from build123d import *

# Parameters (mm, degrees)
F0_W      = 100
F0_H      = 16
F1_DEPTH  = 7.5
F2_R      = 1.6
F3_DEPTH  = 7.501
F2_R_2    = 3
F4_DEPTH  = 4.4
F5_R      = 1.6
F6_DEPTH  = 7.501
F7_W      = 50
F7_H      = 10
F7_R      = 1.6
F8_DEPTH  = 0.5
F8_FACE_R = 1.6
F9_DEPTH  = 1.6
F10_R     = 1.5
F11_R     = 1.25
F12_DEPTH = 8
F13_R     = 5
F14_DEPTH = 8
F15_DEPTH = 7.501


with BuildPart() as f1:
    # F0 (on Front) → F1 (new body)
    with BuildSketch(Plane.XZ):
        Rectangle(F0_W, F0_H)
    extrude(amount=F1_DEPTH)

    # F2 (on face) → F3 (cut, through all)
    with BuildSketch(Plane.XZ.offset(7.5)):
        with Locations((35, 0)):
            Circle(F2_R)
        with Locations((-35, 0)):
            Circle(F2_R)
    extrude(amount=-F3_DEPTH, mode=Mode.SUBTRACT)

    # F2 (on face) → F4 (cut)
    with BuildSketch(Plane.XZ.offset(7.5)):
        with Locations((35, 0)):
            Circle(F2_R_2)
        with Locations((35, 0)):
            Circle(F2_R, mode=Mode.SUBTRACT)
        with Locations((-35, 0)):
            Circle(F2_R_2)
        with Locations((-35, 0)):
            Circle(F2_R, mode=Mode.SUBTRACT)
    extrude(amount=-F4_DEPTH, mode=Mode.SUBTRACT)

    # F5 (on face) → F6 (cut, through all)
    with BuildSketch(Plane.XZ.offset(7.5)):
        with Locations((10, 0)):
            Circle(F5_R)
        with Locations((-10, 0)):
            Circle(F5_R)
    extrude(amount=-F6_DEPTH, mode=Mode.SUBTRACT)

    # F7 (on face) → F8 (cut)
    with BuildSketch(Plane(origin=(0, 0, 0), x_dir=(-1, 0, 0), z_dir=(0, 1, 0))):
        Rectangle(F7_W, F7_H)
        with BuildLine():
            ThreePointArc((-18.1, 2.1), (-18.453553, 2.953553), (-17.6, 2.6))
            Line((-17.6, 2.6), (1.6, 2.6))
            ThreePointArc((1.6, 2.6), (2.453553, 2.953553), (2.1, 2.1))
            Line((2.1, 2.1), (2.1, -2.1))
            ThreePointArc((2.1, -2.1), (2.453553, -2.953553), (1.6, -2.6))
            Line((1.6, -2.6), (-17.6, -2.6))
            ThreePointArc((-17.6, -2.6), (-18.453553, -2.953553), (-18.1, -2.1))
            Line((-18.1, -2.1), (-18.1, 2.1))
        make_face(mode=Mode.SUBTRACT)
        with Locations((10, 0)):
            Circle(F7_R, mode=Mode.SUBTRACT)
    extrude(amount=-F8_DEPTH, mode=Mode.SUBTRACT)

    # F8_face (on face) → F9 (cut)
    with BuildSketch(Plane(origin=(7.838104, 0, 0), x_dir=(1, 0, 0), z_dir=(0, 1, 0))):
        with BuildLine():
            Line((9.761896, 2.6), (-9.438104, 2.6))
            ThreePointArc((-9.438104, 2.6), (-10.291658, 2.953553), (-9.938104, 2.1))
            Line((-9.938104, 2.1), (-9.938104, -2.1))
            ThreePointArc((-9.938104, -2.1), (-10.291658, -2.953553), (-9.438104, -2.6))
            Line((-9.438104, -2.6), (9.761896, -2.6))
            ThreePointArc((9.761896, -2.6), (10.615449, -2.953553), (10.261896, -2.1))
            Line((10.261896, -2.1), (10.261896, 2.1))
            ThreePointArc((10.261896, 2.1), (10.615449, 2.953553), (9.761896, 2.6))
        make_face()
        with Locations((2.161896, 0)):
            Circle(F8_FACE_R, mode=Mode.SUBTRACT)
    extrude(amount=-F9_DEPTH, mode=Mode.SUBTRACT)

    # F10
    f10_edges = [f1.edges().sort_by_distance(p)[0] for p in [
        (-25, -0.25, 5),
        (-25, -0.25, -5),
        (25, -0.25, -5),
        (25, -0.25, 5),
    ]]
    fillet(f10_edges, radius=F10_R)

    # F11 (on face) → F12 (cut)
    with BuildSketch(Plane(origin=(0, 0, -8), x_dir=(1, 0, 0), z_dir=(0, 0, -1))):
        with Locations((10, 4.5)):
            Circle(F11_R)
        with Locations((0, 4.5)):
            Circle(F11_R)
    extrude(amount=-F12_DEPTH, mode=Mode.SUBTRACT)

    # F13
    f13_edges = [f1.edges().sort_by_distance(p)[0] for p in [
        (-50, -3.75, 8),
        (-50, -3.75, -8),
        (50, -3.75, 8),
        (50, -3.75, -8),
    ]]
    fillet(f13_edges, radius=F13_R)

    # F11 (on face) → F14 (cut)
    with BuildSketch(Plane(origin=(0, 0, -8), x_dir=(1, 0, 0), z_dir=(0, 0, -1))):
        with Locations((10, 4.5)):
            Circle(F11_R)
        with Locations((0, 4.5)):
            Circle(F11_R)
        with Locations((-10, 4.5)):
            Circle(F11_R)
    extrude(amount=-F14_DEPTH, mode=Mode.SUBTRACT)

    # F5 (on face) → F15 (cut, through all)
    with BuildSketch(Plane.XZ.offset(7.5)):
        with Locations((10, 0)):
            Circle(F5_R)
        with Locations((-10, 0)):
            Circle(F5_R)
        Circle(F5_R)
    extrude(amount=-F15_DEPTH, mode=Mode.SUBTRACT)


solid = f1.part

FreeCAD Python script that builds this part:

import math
import FreeCAD as App
import Part
import Sketcher
from FreeCAD import Vector


def edges_at(feature, points):
    """Names of the edges that pass closest to the given points."""
    edges = feature.Shape.Edges
    near = lambda p: min(range(len(edges)), key=lambda i: edges[i].distToShape(Part.Vertex(*p))[0])
    return sorted({f"Edge{near(p) + 1}" for p in points})


def add_polygon(sketch, points):
    """Adds a closed chain of lines whose ends are joined by coincident constraints."""
    first, n = sketch.GeometryCount, len(points)
    for a, b in zip(points, points[1:] + points[:1]):
        sketch.addGeometry(Part.LineSegment(App.Vector(*a, 0), App.Vector(*b, 0)), False)
    for i in range(n):
        sketch.addConstraint(Sketcher.Constraint("Coincident", first + i, 2, first + (i + 1) % n, 1))

doc = App.newDocument("Part")
body = doc.addObject("PartDesign::Body", "Body")

# Sketch on XZ plane
sketch1 = body.newObject("Sketcher::SketchObject", "Sketch")
sketch1.AttachmentSupport = (doc.getObject("XZ_Plane"), [""])
sketch1.MapMode = "FlatFace"
add_polygon(sketch1, [(-50, 8), (-50, -8), (50, -8), (50, 8)])  # lines 0-3
sketch1.addConstraint(Sketcher.Constraint("Vertical", 0))
sketch1.addConstraint(Sketcher.Constraint("Horizontal", 1))
sketch1.addConstraint(Sketcher.Constraint("Vertical", 2))
sketch1.addConstraint(Sketcher.Constraint("Horizontal", 3))
sketch1.addConstraint(Sketcher.Constraint("Symmetric", 0, 2, 2, 2, -1, 1))
sketch1.addConstraint(Sketcher.Constraint("DistanceX", 1, 1, 1, 2, 100.0))
sketch1.addConstraint(Sketcher.Constraint("DistanceY", 0, 2, 0, 1, 16.0))
pad1 = body.newObject("PartDesign::Pad", "Pad")
pad1.Profile = sketch1
pad1.Length = 7.5

# Sketch on XZ plane
sketch2 = body.newObject("Sketcher::SketchObject", "Sketch001")
sketch2.AttachmentSupport = (doc.getObject("XZ_Plane"), [""])
sketch2.MapMode = "FlatFace"
sketch2.AttachmentOffset = App.Placement(Vector(0, 0, 7.5), App.Rotation())
sketch2.addGeometry(Part.Circle(Vector(35, 0, 0), Vector(0, 0, 1), 1.6), False)
sketch2.addGeometry(Part.Circle(Vector(-35, 0, 0), Vector(0, 0, 1), 1.6), False)
sketch2.addConstraint(Sketcher.Constraint("Equal", 0, 1))
sketch2.addConstraint(Sketcher.Constraint("Symmetric", 0, 3, 1, 3, -1, 1))
sketch2.addConstraint(Sketcher.Constraint("PointOnObject", 0, 3, -1))
sketch2.addConstraint(Sketcher.Constraint("Diameter", 0, 3.2))
sketch2.addConstraint(Sketcher.Constraint("DistanceX", -1, 1, 0, 3, 35.0))
pocket1 = body.newObject("PartDesign::Pocket", "Pocket")
pocket1.Profile = sketch2
pocket1.Type = "ThroughAll"

# Sketch on XZ plane
sketch3 = body.newObject("Sketcher::SketchObject", "Sketch002")
sketch3.AttachmentSupport = (doc.getObject("XZ_Plane"), [""])
sketch3.MapMode = "FlatFace"
sketch3.AttachmentOffset = App.Placement(Vector(0, 0, 7.5), App.Rotation())
sketch3.addGeometry(Part.Circle(Vector(35, 0, 0), Vector(0, 0, 1), 3), False)
sketch3.addGeometry(Part.Circle(Vector(35, 0, 0), Vector(0, 0, 1), 1.6), False)
sketch3.addGeometry(Part.Circle(Vector(-35, 0, 0), Vector(0, 0, 1), 3), False)
sketch3.addGeometry(Part.Circle(Vector(-35, 0, 0), Vector(0, 0, 1), 1.6), False)
sketch3.addConstraint(Sketcher.Constraint("Coincident", 1, 3, 0, 3))
sketch3.addConstraint(Sketcher.Constraint("Coincident", 3, 3, 2, 3))
sketch3.addConstraint(Sketcher.Constraint("Equal", 0, 2))
sketch3.addConstraint(Sketcher.Constraint("Equal", 1, 3))
sketch3.addConstraint(Sketcher.Constraint("Symmetric", 0, 3, 2, 3, -1, 1))
sketch3.addConstraint(Sketcher.Constraint("PointOnObject", 0, 3, -1))
sketch3.addConstraint(Sketcher.Constraint("Diameter", 0, 6.0))
sketch3.addConstraint(Sketcher.Constraint("Diameter", 1, 3.2))
sketch3.addConstraint(Sketcher.Constraint("DistanceX", -1, 1, 0, 3, 35.0))
pocket2 = body.newObject("PartDesign::Pocket", "Pocket001")
pocket2.Profile = sketch3
pocket2.Length = 4.4

# Sketch on XZ plane
sketch4 = body.newObject("Sketcher::SketchObject", "Sketch003")
sketch4.AttachmentSupport = (doc.getObject("XZ_Plane"), [""])
sketch4.MapMode = "FlatFace"
sketch4.AttachmentOffset = App.Placement(Vector(0, 0, 7.5), App.Rotation())
sketch4.addGeometry(Part.Circle(Vector(10, 0, 0), Vector(0, 0, 1), 1.6), False)
sketch4.addGeometry(Part.Circle(Vector(-10, 0, 0), Vector(0, 0, 1), 1.6), False)
sketch4.addConstraint(Sketcher.Constraint("Equal", 0, 1))
sketch4.addConstraint(Sketcher.Constraint("Symmetric", 0, 3, 1, 3, -1, 1))
sketch4.addConstraint(Sketcher.Constraint("PointOnObject", 0, 3, -1))
sketch4.addConstraint(Sketcher.Constraint("Diameter", 0, 3.2))
sketch4.addConstraint(Sketcher.Constraint("DistanceX", -1, 1, 0, 3, 10.0))
pocket3 = body.newObject("PartDesign::Pocket", "Pocket002")
pocket3.Profile = sketch4
pocket3.Type = "ThroughAll"

# Sketch on XZ plane
sketch5 = body.newObject("Sketcher::SketchObject", "Sketch004")
sketch5.AttachmentSupport = (doc.getObject("XZ_Plane"), [""])
sketch5.MapMode = "FlatFace"
add_polygon(sketch5, [(25, 5), (25, -5), (-25, -5), (-25, 5)])  # lines 0-3
sketch5.addGeometry(Part.LineSegment(Vector(18.1, -2.1, 0), Vector(18.1, 2.1, 0)), False)  # 4
sketch5.addGeometry(Part.ArcOfCircle(Part.Circle(Vector(18.1, 2.6, 0), Vector(0, 0, 1), 0.5), math.radians(-89.999974), math.radians(179.999974)), False)  # 5
sketch5.addGeometry(Part.LineSegment(Vector(17.6, 2.6, 0), Vector(-1.6, 2.6, 0)), False)  # 6
sketch5.addGeometry(Part.ArcOfCircle(Part.Circle(Vector(-2.1, 2.6, 0), Vector(0, 0, 1), 0.5), math.radians(0.000026), math.radians(269.999974)), False)  # 7
sketch5.addGeometry(Part.LineSegment(Vector(-2.1, 2.1, 0), Vector(-2.1, -2.1, 0)), False)  # 8
sketch5.addGeometry(Part.ArcOfCircle(Part.Circle(Vector(-2.1, -2.6, 0), Vector(0, 0, 1), 0.5), math.radians(90.000026), math.radians(359.999974)), False)  # 9
sketch5.addGeometry(Part.LineSegment(Vector(-1.6, -2.6, 0), Vector(17.6, -2.6, 0)), False)  # 10
sketch5.addGeometry(Part.ArcOfCircle(Part.Circle(Vector(18.1, -2.6, 0), Vector(0, 0, 1), 0.5), math.radians(-179.999974), math.radians(89.999974)), False)  # 11
sketch5.addGeometry(Part.Circle(Vector(-10, 0, 0), Vector(0, 0, 1), 1.6), False)  # 12
sketch5.addConstraint(Sketcher.Constraint("Coincident", 4, 2, 5, 1))
sketch5.addConstraint(Sketcher.Constraint("Coincident", 5, 2, 6, 1))
sketch5.addConstraint(Sketcher.Constraint("Coincident", 6, 2, 7, 1))
sketch5.addConstraint(Sketcher.Constraint("Coincident", 7, 2, 8, 1))
sketch5.addConstraint(Sketcher.Constraint("Coincident", 8, 2, 9, 1))
sketch5.addConstraint(Sketcher.Constraint("Coincident", 9, 2, 10, 1))
sketch5.addConstraint(Sketcher.Constraint("Coincident", 10, 2, 11, 1))
sketch5.addConstraint(Sketcher.Constraint("Coincident", 11, 2, 4, 1))
sketch5.addConstraint(Sketcher.Constraint("Vertical", 0))
sketch5.addConstraint(Sketcher.Constraint("Horizontal", 1))
sketch5.addConstraint(Sketcher.Constraint("Vertical", 2))
sketch5.addConstraint(Sketcher.Constraint("Horizontal", 3))
sketch5.addConstraint(Sketcher.Constraint("Vertical", 4))
sketch5.addConstraint(Sketcher.Constraint("Horizontal", 6))
sketch5.addConstraint(Sketcher.Constraint("Vertical", 8))
sketch5.addConstraint(Sketcher.Constraint("Horizontal", 10))
sketch5.addConstraint(Sketcher.Constraint("Equal", 5, 7))
sketch5.addConstraint(Sketcher.Constraint("Equal", 7, 9))
sketch5.addConstraint(Sketcher.Constraint("Equal", 9, 11))
sketch5.addConstraint(Sketcher.Constraint("Symmetric", 0, 2, 2, 2, -1, 1))
sketch5.addConstraint(Sketcher.Constraint("Symmetric", 7, 3, 9, 3, -1))
sketch5.addConstraint(Sketcher.Constraint("Symmetric", 5, 3, 11, 3, -1))
sketch5.addConstraint(Sketcher.Constraint("PointOnObject", 12, 3, -1))
sketch5.addConstraint(Sketcher.Constraint("Horizontal", 5, 3, 7, 3))
sketch5.addConstraint(Sketcher.Constraint("Horizontal", 7, 3, 5, 2))
sketch5.addConstraint(Sketcher.Constraint("Horizontal", 11, 3, 9, 2))
sketch5.addConstraint(Sketcher.Constraint("Vertical", 11, 3, 4, 2))
sketch5.addConstraint(Sketcher.Constraint("Vertical", 9, 3, 7, 2))
sketch5.addConstraint(Sketcher.Constraint("Diameter", 12, 3.2))
sketch5.addConstraint(Sketcher.Constraint("Radius", 5, 0.5))
sketch5.addConstraint(Sketcher.Constraint("DistanceX", 1, 2, 1, 1, 50.0))
sketch5.addConstraint(Sketcher.Constraint("DistanceY", 0, 2, 0, 1, 10.0))
sketch5.addConstraint(Sketcher.Constraint("DistanceX", 6, 2, 6, 1, 19.2))
sketch5.addConstraint(Sketcher.Constraint("DistanceY", 4, 1, 4, 2, 4.2))
sketch5.addConstraint(Sketcher.Constraint("DistanceX", 12, 3, -1, 1, 10.0))
sketch5.addConstraint(Sketcher.Constraint("DistanceX", -1, 1, 5, 3, 18.1))
pocket4 = body.newObject("PartDesign::Pocket", "Pocket003")
pocket4.Profile = sketch5
pocket4.Length = 0.5
pocket4.Reversed = True

# Sketch on XZ plane
sketch6 = body.newObject("Sketcher::SketchObject", "Sketch005")
sketch6.AttachmentSupport = (doc.getObject("XZ_Plane"), [""])
sketch6.MapMode = "FlatFace"
sketch6.addGeometry(Part.LineSegment(Vector(17.6, -2.6, 0), Vector(-1.6, -2.6, 0)), False)
sketch6.addGeometry(Part.ArcOfCircle(Part.Circle(Vector(-2.1, -2.6, 0), Vector(0, 0, 1), 0.5), math.radians(89.999993), math.radians(360.000007)), False)
sketch6.addGeometry(Part.LineSegment(Vector(-2.1, -2.1, 0), Vector(-2.1, 2.1, 0)), False)
sketch6.addGeometry(Part.ArcOfCircle(Part.Circle(Vector(-2.1, 2.6, 0), Vector(0, 0, 1), 0.5), math.radians(-0.000007), math.radians(270.000007)), False)
sketch6.addGeometry(Part.LineSegment(Vector(-1.6, 2.6, 0), Vector(17.6, 2.6, 0)), False)
sketch6.addGeometry(Part.ArcOfCircle(Part.Circle(Vector(18.1, 2.6, 0), Vector(0, 0, 1), 0.5), math.radians(-89.999974), math.radians(179.999974)), False)
sketch6.addGeometry(Part.LineSegment(Vector(18.1, 2.1, 0), Vector(18.1, -2.1, 0)), False)
sketch6.addGeometry(Part.ArcOfCircle(Part.Circle(Vector(18.1, -2.6, 0), Vector(0, 0, 1), 0.5), math.radians(-179.999974), math.radians(89.999974)), False)
sketch6.addGeometry(Part.Circle(Vector(10, 0, 0), Vector(0, 0, 1), 1.6), False)
sketch6.addConstraint(Sketcher.Constraint("Coincident", 0, 2, 1, 2))
sketch6.addConstraint(Sketcher.Constraint("Coincident", 1, 1, 2, 1))
sketch6.addConstraint(Sketcher.Constraint("Coincident", 2, 2, 3, 2))
sketch6.addConstraint(Sketcher.Constraint("Coincident", 3, 1, 4, 1))
sketch6.addConstraint(Sketcher.Constraint("Coincident", 4, 2, 5, 2))
sketch6.addConstraint(Sketcher.Constraint("Coincident", 5, 1, 6, 1))
sketch6.addConstraint(Sketcher.Constraint("Coincident", 6, 2, 7, 2))
sketch6.addConstraint(Sketcher.Constraint("Coincident", 7, 1, 0, 1))
sketch6.addConstraint(Sketcher.Constraint("Horizontal", 0))
sketch6.addConstraint(Sketcher.Constraint("Vertical", 2))
sketch6.addConstraint(Sketcher.Constraint("Horizontal", 4))
sketch6.addConstraint(Sketcher.Constraint("Vertical", 6))
sketch6.addConstraint(Sketcher.Constraint("Equal", 1, 3))
sketch6.addConstraint(Sketcher.Constraint("Equal", 3, 5))
sketch6.addConstraint(Sketcher.Constraint("Equal", 5, 7))
sketch6.addConstraint(Sketcher.Constraint("Symmetric", 1, 3, 3, 3, -1))
sketch6.addConstraint(Sketcher.Constraint("Symmetric", 5, 3, 7, 3, -1))
sketch6.addConstraint(Sketcher.Constraint("PointOnObject", 8, 3, -1))
sketch6.addConstraint(Sketcher.Constraint("Horizontal", 3, 3, 5, 3))
sketch6.addConstraint(Sketcher.Constraint("Horizontal", 7, 3, 0, 2))
sketch6.addConstraint(Sketcher.Constraint("Horizontal", 5, 3, 3, 1))
sketch6.addConstraint(Sketcher.Constraint("Vertical", 3, 3, 1, 1))
sketch6.addConstraint(Sketcher.Constraint("Vertical", 7, 3, 5, 1))
sketch6.addConstraint(Sketcher.Constraint("Diameter", 8, 3.2))
sketch6.addConstraint(Sketcher.Constraint("Radius", 1, 0.5))
sketch6.addConstraint(Sketcher.Constraint("DistanceX", 0, 2, 0, 1, 19.2))
sketch6.addConstraint(Sketcher.Constraint("DistanceY", 2, 1, 2, 2, 4.2))
sketch6.addConstraint(Sketcher.Constraint("DistanceX", -1, 1, 8, 3, 10.0))
sketch6.addConstraint(Sketcher.Constraint("DistanceX", 1, 3, -1, 1, 2.1))
pocket5 = body.newObject("PartDesign::Pocket", "Pocket004")
pocket5.Profile = sketch6
pocket5.Length = 1.6
pocket5.Reversed = True
doc.recompute()

fillet = body.newObject("PartDesign::Fillet", "Fillet")
fillet.Base = (pocket5, edges_at(pocket5, [
    (-25, -0.25, 5),
    (-25, -0.25, -5),
    (25, -0.25, -5),
    (25, -0.25, 5),
]))
fillet.Radius = 1.5

# Sketch on XY plane
sketch7 = body.newObject("Sketcher::SketchObject", "Sketch006")
sketch7.AttachmentSupport = (doc.getObject("XY_Plane"), [""])
sketch7.MapMode = "FlatFace"
sketch7.AttachmentOffset = App.Placement(Vector(0, 0, -8), App.Rotation())
sketch7.addGeometry(Part.Circle(Vector(10, -4.5, 0), Vector(0, 0, 1), 1.25), False)
sketch7.addGeometry(Part.Circle(Vector(0, -4.5, 0), Vector(0, 0, 1), 1.25), False)
sketch7.addConstraint(Sketcher.Constraint("Equal", 0, 1))
sketch7.addConstraint(Sketcher.Constraint("PointOnObject", 1, 3, -2))
sketch7.addConstraint(Sketcher.Constraint("Horizontal", 0, 3, 1, 3))
sketch7.addConstraint(Sketcher.Constraint("Diameter", 0, 2.5))
sketch7.addConstraint(Sketcher.Constraint("DistanceX", -1, 1, 0, 3, 10.0))
sketch7.addConstraint(Sketcher.Constraint("DistanceY", 0, 3, -1, 1, 4.5))
pocket6 = body.newObject("PartDesign::Pocket", "Pocket005")
pocket6.Profile = sketch7
pocket6.Length = 8
pocket6.Reversed = True
doc.recompute()

fillet2 = body.newObject("PartDesign::Fillet", "Fillet001")
fillet2.Base = (pocket6, edges_at(pocket6, [
    (-50, -3.75, 8),
    (-50, -3.75, -8),
    (50, -3.75, 8),
    (50, -3.75, -8),
]))
fillet2.Radius = 5

# Sketch on XY plane
sketch8 = body.newObject("Sketcher::SketchObject", "Sketch007")
sketch8.AttachmentSupport = (doc.getObject("XY_Plane"), [""])
sketch8.MapMode = "FlatFace"
sketch8.AttachmentOffset = App.Placement(Vector(0, 0, -8), App.Rotation())
sketch8.addGeometry(Part.Circle(Vector(10, -4.5, 0), Vector(0, 0, 1), 1.25), False)
sketch8.addGeometry(Part.Circle(Vector(0, -4.5, 0), Vector(0, 0, 1), 1.25), False)
sketch8.addGeometry(Part.Circle(Vector(-10, -4.5, 0), Vector(0, 0, 1), 1.25), False)
sketch8.addConstraint(Sketcher.Constraint("Equal", 0, 1))
sketch8.addConstraint(Sketcher.Constraint("Equal", 1, 2))
sketch8.addConstraint(Sketcher.Constraint("Symmetric", 0, 3, 2, 3, -2))
sketch8.addConstraint(Sketcher.Constraint("PointOnObject", 1, 3, -2))
sketch8.addConstraint(Sketcher.Constraint("Horizontal", 0, 3, 1, 3))
sketch8.addConstraint(Sketcher.Constraint("Diameter", 0, 2.5))
sketch8.addConstraint(Sketcher.Constraint("DistanceX", -1, 1, 0, 3, 10.0))
sketch8.addConstraint(Sketcher.Constraint("DistanceY", 0, 3, -1, 1, 4.5))
pocket7 = body.newObject("PartDesign::Pocket", "Pocket006")
pocket7.Profile = sketch8
pocket7.Length = 8
pocket7.Reversed = True

# Sketch on XZ plane
sketch9 = body.newObject("Sketcher::SketchObject", "Sketch008")
sketch9.AttachmentSupport = (doc.getObject("XZ_Plane"), [""])
sketch9.MapMode = "FlatFace"
sketch9.AttachmentOffset = App.Placement(Vector(0, 0, 7.5), App.Rotation())
sketch9.addGeometry(Part.Circle(Vector(10, 0, 0), Vector(0, 0, 1), 1.6), False)
sketch9.addGeometry(Part.Circle(Vector(-10, 0, 0), Vector(0, 0, 1), 1.6), False)
sketch9.addGeometry(Part.Circle(Vector(0, 0, 0), Vector(0, 0, 1), 1.6), False)
sketch9.addConstraint(Sketcher.Constraint("Coincident", 2, 3, -1, 1))
sketch9.addConstraint(Sketcher.Constraint("Equal", 0, 1))
sketch9.addConstraint(Sketcher.Constraint("Equal", 1, 2))
sketch9.addConstraint(Sketcher.Constraint("Symmetric", 0, 3, 1, 3, -1, 1))
sketch9.addConstraint(Sketcher.Constraint("PointOnObject", 0, 3, -1))
sketch9.addConstraint(Sketcher.Constraint("Diameter", 0, 3.2))
sketch9.addConstraint(Sketcher.Constraint("DistanceX", -1, 1, 0, 3, 10.0))
pocket8 = body.newObject("PartDesign::Pocket", "Pocket007")
pocket8.Profile = sketch9
pocket8.Type = "ThroughAll"

doc.recompute()
